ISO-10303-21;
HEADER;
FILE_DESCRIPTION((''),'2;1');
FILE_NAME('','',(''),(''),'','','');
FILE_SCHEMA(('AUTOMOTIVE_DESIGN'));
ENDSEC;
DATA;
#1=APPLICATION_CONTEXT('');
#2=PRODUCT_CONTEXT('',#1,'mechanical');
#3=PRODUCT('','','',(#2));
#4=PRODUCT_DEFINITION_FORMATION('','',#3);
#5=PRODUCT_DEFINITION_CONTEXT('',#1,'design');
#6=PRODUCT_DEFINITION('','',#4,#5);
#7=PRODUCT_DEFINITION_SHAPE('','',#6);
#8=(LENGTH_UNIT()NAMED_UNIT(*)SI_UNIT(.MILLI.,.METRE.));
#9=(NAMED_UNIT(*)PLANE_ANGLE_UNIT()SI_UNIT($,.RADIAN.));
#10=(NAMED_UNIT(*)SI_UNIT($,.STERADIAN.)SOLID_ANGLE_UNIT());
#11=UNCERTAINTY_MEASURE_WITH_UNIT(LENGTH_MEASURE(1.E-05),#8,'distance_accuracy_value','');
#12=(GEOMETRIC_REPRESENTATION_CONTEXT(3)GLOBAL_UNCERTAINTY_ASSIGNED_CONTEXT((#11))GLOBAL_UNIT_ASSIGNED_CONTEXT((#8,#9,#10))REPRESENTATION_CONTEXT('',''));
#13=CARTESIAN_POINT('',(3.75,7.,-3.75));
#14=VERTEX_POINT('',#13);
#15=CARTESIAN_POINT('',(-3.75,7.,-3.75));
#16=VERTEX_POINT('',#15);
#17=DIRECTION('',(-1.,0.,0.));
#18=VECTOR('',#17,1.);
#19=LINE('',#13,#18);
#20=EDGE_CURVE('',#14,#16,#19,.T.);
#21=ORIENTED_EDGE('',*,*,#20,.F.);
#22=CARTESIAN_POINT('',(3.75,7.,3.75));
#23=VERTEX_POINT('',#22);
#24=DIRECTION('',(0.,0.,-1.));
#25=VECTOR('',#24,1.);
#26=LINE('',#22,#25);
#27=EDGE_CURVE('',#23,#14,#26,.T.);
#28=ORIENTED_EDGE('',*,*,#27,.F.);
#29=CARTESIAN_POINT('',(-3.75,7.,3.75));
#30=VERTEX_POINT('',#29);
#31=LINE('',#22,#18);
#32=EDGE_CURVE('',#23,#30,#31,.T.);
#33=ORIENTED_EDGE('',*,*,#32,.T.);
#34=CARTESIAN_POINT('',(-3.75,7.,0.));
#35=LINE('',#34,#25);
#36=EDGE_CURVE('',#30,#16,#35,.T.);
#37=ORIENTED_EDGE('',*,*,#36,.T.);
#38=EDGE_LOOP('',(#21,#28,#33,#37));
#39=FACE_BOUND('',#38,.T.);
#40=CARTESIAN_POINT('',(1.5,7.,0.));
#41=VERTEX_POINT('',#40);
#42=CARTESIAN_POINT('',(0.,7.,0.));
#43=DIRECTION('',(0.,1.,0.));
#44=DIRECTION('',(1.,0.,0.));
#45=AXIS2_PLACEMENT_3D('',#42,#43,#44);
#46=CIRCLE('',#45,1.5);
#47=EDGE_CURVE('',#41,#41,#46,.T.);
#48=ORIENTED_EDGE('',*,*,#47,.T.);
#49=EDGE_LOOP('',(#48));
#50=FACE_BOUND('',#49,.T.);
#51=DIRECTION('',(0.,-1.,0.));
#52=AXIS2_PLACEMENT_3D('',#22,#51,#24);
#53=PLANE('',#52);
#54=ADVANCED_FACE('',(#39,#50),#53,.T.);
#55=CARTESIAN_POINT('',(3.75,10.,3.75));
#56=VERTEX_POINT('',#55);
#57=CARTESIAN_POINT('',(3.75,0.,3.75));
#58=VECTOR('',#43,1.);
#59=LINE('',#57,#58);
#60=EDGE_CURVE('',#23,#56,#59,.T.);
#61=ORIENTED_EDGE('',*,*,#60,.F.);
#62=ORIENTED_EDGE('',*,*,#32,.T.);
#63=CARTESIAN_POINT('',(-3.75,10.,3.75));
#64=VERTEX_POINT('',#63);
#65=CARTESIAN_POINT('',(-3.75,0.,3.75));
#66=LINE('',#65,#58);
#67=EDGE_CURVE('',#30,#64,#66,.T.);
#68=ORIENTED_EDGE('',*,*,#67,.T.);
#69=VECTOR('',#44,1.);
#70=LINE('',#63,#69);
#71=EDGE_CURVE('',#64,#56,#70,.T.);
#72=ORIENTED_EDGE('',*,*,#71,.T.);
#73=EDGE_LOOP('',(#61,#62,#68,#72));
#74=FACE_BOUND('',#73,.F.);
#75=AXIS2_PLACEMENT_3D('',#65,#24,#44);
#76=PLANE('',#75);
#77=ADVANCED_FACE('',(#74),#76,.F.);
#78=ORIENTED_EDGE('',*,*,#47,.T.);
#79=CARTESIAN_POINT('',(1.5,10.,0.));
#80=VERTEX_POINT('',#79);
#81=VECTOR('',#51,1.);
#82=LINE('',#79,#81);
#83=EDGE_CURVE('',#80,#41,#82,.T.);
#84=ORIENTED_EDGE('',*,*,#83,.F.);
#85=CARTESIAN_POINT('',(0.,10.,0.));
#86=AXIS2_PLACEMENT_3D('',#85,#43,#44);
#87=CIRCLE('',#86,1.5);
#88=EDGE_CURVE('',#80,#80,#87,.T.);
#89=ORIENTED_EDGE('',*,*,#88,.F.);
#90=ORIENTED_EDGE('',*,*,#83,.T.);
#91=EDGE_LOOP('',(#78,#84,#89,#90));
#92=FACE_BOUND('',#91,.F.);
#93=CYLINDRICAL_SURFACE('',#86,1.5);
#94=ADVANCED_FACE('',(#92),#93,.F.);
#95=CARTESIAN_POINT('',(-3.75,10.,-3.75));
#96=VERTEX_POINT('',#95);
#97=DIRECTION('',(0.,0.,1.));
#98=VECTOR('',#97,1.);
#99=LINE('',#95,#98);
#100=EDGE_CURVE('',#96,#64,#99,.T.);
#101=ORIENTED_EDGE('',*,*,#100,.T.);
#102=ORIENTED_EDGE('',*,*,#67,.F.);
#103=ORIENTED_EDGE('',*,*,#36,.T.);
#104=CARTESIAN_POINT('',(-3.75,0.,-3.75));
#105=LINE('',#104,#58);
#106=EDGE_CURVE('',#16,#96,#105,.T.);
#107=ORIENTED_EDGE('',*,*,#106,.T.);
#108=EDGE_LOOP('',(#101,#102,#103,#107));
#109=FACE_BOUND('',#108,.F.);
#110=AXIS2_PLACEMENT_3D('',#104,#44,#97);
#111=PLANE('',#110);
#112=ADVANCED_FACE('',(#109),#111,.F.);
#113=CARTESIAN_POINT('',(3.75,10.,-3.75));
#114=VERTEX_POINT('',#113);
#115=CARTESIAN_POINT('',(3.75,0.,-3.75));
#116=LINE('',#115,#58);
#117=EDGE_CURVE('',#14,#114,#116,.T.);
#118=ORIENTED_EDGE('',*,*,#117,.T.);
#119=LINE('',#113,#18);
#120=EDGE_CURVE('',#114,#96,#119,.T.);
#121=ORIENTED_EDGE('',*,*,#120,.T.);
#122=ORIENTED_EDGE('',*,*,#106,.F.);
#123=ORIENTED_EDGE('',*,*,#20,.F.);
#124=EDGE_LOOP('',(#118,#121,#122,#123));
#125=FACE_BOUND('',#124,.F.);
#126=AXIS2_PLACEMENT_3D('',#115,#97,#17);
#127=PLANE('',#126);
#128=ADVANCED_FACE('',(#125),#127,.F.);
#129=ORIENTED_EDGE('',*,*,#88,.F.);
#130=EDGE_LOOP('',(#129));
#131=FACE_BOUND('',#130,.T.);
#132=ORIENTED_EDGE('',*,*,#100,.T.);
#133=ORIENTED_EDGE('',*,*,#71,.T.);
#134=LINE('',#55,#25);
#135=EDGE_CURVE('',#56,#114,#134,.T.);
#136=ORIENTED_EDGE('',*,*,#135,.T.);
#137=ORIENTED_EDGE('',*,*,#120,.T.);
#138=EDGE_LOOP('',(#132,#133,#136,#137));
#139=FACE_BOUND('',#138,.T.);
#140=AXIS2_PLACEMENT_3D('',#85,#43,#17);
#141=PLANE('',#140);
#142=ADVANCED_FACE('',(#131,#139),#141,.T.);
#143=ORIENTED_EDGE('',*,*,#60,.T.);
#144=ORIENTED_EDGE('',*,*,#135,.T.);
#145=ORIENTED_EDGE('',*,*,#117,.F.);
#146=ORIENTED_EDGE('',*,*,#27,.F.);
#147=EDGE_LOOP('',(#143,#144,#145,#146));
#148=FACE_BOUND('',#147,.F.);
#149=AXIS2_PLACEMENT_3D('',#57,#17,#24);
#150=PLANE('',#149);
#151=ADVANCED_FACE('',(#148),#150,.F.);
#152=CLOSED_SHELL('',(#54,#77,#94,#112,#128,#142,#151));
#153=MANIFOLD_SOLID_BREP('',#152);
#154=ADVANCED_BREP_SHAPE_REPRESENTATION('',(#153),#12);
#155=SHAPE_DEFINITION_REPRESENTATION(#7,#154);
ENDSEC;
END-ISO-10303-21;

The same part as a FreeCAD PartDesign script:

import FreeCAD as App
import Part
import Sketcher


def add_polygon(sketch, points):
    """Adds a closed chain of lines whose ends are joined by coincident constraints."""
    first, n = sketch.GeometryCount, len(points)
    for a, b in zip(points, points[1:] + points[:1]):
        sketch.addGeometry(Part.LineSegment(App.Vector(*a, 0), App.Vector(*b, 0)), False)
    for i in range(n):
        sketch.addConstraint(Sketcher.Constraint("Coincident", first + i, 2, first + (i + 1) % n, 1))

doc = App.newDocument("Part")
body = doc.addObject("PartDesign::Body", "Body")

# Sketch on XZ plane
sketch1 = body.newObject("Sketcher::SketchObject", "Sketch")
sketch1.AttachmentSupport = (doc.getObject("XZ_Plane"), [""])
sketch1.MapMode = "FlatFace"
add_polygon(sketch1, [(4, 4), (4, -4), (-4, -4), (-4, 4)])  # lines 0-3
sketch1.addConstraint([
    Sketcher.Constraint("Vertical", 0),
    Sketcher.Constraint("Horizontal", 1),
    Sketcher.Constraint("Vertical", 2),
    Sketcher.Constraint("Horizontal", 3),
    Sketcher.Constraint("Symmetric", 0, 2, 2, 2, -1, 1),
    Sketcher.Constraint("Equal", 3, 0),
    Sketcher.Constraint("DistanceX", 1, 2, 1, 1, 7.5),
])
pad1 = body.newObject("PartDesign::Pad", "Pad")
pad1.Profile = sketch1
pad1.Length = 10
pad1.Reversed = True

# Sketch on YZ plane
sketch2 = body.newObject("Sketcher::SketchObject", "Sketch001")
sketch2.AttachmentSupport = (doc.getObject("YZ_Plane"), [""])
sketch2.MapMode = "FlatFace"
sketch2.AttachmentOffset = App.Placement(App.Vector(0, 0, 3.75), App.Rotation())
add_polygon(sketch2, [(0, 4), (0, -4), (7, -4), (7, 4)])  # lines 0-3
sketch2.addConstraint([
    Sketcher.Constraint("Vertical", 0),
    Sketcher.Constraint("Horizontal", 1),
    Sketcher.Constraint("Vertical", 2),
    Sketcher.Constraint("Horizontal", 3),
    Sketcher.Constraint("Symmetric", 0, 2, 3, 2, -1, 1),
    Sketcher.Constraint("DistanceX", 1, 1, 1, 2, 7.0),
    Sketcher.Constraint("DistanceY", 0, 2, 0, 1, 7.5),
])
pocket1 = body.newObject("PartDesign::Pocket", "Pocket")
pocket1.Profile = sketch2
pocket1.Length = 9.05

# Sketch on XZ plane
sketch3 = body.newObject("Sketcher::SketchObject", "Sketch002")
sketch3.AttachmentSupport = (doc.getObject("XZ_Plane"), [""])
sketch3.MapMode = "FlatFace"
sketch3.AttachmentOffset = App.Placement(App.Vector(0, 0, -10), App.Rotation())
sketch3.addGeometry(Part.Circle(App.Vector(0, 0, 0), App.Vector(0, 0, 1), 1.5), False)
sketch3.addConstraint([
    Sketcher.Constraint("Coincident", 0, 3, -1, 1),
    Sketcher.Constraint("Diameter", 0, 3.0),
])
pocket2 = body.newObject("PartDesign::Pocket", "Pocket001")
pocket2.Profile = sketch3
pocket2.Length = 5.2375
pocket2.Reversed = True

doc.recompute()
